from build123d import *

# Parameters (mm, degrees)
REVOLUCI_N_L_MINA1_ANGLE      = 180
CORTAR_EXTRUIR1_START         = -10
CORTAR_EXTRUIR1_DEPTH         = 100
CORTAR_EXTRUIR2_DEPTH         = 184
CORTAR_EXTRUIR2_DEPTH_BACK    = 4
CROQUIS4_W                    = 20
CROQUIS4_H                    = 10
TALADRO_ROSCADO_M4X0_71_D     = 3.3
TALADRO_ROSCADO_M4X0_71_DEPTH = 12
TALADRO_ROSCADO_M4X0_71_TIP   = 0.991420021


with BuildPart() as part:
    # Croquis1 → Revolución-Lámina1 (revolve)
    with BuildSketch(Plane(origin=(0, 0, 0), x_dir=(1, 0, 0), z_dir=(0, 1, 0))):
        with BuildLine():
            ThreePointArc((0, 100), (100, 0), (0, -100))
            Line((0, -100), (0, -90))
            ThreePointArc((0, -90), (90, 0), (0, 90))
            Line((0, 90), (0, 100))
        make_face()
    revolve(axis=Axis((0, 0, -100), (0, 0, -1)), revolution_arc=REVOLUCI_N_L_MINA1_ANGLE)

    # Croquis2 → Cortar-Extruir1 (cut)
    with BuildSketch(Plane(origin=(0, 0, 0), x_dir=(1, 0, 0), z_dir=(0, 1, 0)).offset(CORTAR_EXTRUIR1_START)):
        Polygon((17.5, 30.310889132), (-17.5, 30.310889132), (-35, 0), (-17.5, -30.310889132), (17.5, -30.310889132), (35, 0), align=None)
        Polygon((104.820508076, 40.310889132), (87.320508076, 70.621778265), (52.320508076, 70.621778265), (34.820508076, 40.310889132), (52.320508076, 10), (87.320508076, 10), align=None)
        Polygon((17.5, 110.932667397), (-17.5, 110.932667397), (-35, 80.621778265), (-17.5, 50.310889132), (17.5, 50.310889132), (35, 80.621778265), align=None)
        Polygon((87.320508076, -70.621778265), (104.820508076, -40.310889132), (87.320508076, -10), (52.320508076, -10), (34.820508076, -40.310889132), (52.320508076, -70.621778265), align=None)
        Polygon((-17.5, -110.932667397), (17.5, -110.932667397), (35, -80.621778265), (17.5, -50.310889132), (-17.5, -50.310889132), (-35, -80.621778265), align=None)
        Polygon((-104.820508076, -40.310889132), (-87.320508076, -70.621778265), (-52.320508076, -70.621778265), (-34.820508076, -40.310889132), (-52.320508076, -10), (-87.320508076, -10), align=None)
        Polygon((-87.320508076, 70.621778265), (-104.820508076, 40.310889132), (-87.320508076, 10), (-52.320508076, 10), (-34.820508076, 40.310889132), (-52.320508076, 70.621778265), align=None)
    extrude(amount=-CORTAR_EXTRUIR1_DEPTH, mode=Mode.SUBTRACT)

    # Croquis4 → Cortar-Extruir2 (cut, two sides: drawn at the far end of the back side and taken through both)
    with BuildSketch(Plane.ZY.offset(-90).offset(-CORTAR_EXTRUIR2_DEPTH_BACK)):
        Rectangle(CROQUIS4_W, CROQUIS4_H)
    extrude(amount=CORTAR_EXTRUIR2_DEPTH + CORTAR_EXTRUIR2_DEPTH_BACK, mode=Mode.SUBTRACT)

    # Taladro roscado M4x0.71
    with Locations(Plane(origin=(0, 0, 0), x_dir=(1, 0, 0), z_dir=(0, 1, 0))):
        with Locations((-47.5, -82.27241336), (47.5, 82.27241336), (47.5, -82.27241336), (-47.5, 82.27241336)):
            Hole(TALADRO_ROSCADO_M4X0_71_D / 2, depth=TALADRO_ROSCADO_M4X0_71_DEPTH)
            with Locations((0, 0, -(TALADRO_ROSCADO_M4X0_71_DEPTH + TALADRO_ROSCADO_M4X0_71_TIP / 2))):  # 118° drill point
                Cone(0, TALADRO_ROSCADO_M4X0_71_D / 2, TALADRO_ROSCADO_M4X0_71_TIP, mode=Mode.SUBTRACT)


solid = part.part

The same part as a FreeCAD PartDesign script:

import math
import FreeCAD as App
import Part
import Sketcher

V = App.Vector
Q = App.Units.Quantity


def add_polygon(sketch, points):
    """Adds a closed chain of lines whose ends are joined by coincident constraints."""
    first, n = sketch.GeometryCount, len(points)
    for a, b in zip(points, points[1:] + points[:1]):
        sketch.addGeometry(Part.LineSegment(App.Vector(*a, 0), App.Vector(*b, 0)), False)
    for i in range(n):
        sketch.addConstraint(Sketcher.Constraint("Coincident", first + i, 2, first + (i + 1) % n, 1))

doc = App.newDocument("Part")
body = doc.addObject("PartDesign::Body", "Body")

# Sketch on XZ plane
sketch1 = doc.addObject("Sketcher::SketchObject", "Sketch")
body.addObject(sketch1)
sketch1.AttachmentSupport = (doc.XZ_Plane, [""])
sketch1.MapMode = "FlatFace"
sketch1.addGeometry(Part.ArcOfCircle(Part.Circle(V(0, 0, 0), V(0, 0, 1), 100), math.radians(-90), math.radians(90)), False)
sketch1.addGeometry(Part.LineSegment(V(0, -100, 0), V(0, -90, 0)), False)
sketch1.addGeometry(Part.ArcOfCircle(Part.Circle(V(0, 0, 0), V(0, 0, 1), 90), math.radians(-90), math.radians(90)), False)
sketch1.addGeometry(Part.LineSegment(V(0, 90, 0), V(0, 100, 0)), False)
sketch1.addConstraint(Sketcher.Constraint("Coincident", 0, 1, 1, 1))
sketch1.addConstraint(Sketcher.Constraint("Coincident", 1, 2, 2, 1))
sketch1.addConstraint(Sketcher.Constraint("Coincident", 2, 2, 3, 1))
sketch1.addConstraint(Sketcher.Constraint("Coincident", 3, 2, 0, 2))
sketch1.addConstraint(Sketcher.Constraint("Vertical", 1))
sketch1.addConstraint(Sketcher.Constraint("Vertical", 3))
sketch1.addConstraint(Sketcher.Constraint("Coincident", 0, 3, -1, 1))
sketch1.addConstraint(Sketcher.Constraint("Coincident", 2, 3, -1, 1))
sketch1.addConstraint(Sketcher.Constraint("PointOnObject", 0, 1, -2))
sketch1.addConstraint(Sketcher.Constraint("PointOnObject", 2, 2, -2))
sketch1.addConstraint(Sketcher.Constraint("Radius", 0, 100.0))
sketch1.addConstraint(Sketcher.Constraint("Radius", 2, 90.0))
revolution = doc.addObject("PartDesign::Revolution", "Revolution")
body.addObject(revolution)
revolution.Profile = sketch1
revolution.ReferenceAxis = (sketch1, ["V_Axis"])
revolution.Angle = 180
revolution.Reversed = True

# Sketch on XZ plane
sketch2 = doc.addObject("Sketcher::SketchObject", "Sketch001")
body.addObject(sketch2)
sketch2.AttachmentSupport = (doc.XZ_Plane, [""])
sketch2.MapMode = "FlatFace"
sketch2.AttachmentOffset = App.Placement(V(0, 0, 10), App.Rotation())
add_polygon(sketch2, [(17.5, -30.310889), (-17.5, -30.310889), (-35, 0), (-17.5, 30.310889), (17.5, 30.310889), (35, 0)])  # lines 0-5
add_polygon(sketch2, [(104.820508, -40.310889), (87.320508, -70.621778), (52.320508, -70.621778), (34.820508, -40.310889), (52.320508, -10), (87.320508, -10)])  # lines 6-11
add_polygon(sketch2, [(17.5, -110.932667), (-17.5, -110.932667), (-35, -80.621778), (-17.5, -50.310889), (17.5, -50.310889), (35, -80.621778)])  # lines 12-17
add_polygon(sketch2, [(87.320508, 70.621778), (104.820508, 40.310889), (87.320508, 10), (52.320508, 10), (34.820508, 40.310889), (52.320508, 70.621778)])  # lines 18-23
add_polygon(sketch2, [(-17.5, 110.932667), (17.5, 110.932667), (35, 80.621778), (17.5, 50.310889), (-17.5, 50.310889), (-35, 80.621778)])  # lines 24-29
add_polygon(sketch2, [(-104.820508, 40.310889), (-87.320508, 70.621778), (-52.320508, 70.621778), (-34.820508, 40.310889), (-52.320508, 10), (-87.320508, 10)])  # lines 30-35
add_polygon(sketch2, [(-87.320508, -70.621778), (-104.820508, -40.310889), (-87.320508, -10), (-52.320508, -10), (-34.820508, -40.310889), (-52.320508, -70.621778)])  # lines 36-41
sketch2.addConstraint(Sketcher.Constraint("Horizontal", 0))
sketch2.addConstraint(Sketcher.Constraint("Horizontal", 3))
sketch2.addConstraint(Sketcher.Constraint("Horizontal", 7))
sketch2.addConstraint(Sketcher.Constraint("Horizontal", 10))
sketch2.addConstraint(Sketcher.Constraint("Horizontal", 12))
sketch2.addConstraint(Sketcher.Constraint("Horizontal", 15))
sketch2.addConstraint(Sketcher.Constraint("Horizontal", 20))
sketch2.addConstraint(Sketcher.Constraint("Horizontal", 23))
sketch2.addConstraint(Sketcher.Constraint("Horizontal", 24))
sketch2.addConstraint(Sketcher.Constraint("Horizontal", 27))
sketch2.addConstraint(Sketcher.Constraint("Horizontal", 31))
sketch2.addConstraint(Sketcher.Constraint("Horizontal", 34))
sketch2.addConstraint(Sketcher.Constraint("Horizontal", 38))
sketch2.addConstraint(Sketcher.Constraint("Horizontal", 41))
sketch2.addConstraint(Sketcher.Constraint("Symmetric", 0, 2, 3, 2, -1, 1))
sketch2.addConstraint(Sketcher.Constraint("Symmetric", 1, 2, 4, 2, -1, 1))
sketch2.addConstraint(Sketcher.Constraint("Symmetric", 12, 2, 24, 2, -1, 1))
sketch2.addConstraint(Sketcher.Constraint("Symmetric", 13, 2, 25, 2, -1, 1))
sketch2.addConstraint(Sketcher.Constraint("Symmetric", 14, 2, 26, 2, -1, 1))
sketch2.addConstraint(Sketcher.Constraint("Symmetric", 16, 2, 28, 2, -1, 1))
sketch2.addConstraint(Sketcher.Constraint("Symmetric", 6, 2, 30, 2, -1, 1))
sketch2.addConstraint(Sketcher.Constraint("Symmetric", 8, 2, 32, 2, -1, 1))
sketch2.addConstraint(Sketcher.Constraint("Symmetric", 9, 2, 33, 2, -1, 1))
sketch2.addConstraint(Sketcher.Constraint("Symmetric", 11, 2, 35, 2, -1, 1))
sketch2.addConstraint(Sketcher.Constraint("Symmetric", 18, 2, 36, 2, -1, 1))
sketch2.addConstraint(Sketcher.Constraint("Symmetric", 19, 2, 37, 2, -1, 1))
sketch2.addConstraint(Sketcher.Constraint("Symmetric", 21, 2, 39, 2, -1, 1))
sketch2.addConstraint(Sketcher.Constraint("Symmetric", 22, 2, 40, 2, -1, 1))
sketch2.addConstraint(Sketcher.Constraint("Symmetric", 13, 2, 16, 2, -2))
sketch2.addConstraint(Sketcher.Constraint("Symmetric", 23, 2, 30, 2, -2))
sketch2.addConstraint(Sketcher.Constraint("Symmetric", 21, 2, 32, 2, -2))
sketch2.addConstraint(Sketcher.Constraint("Symmetric", 20, 2, 33, 2, -2))
sketch2.addConstraint(Sketcher.Constraint("Symmetric", 18, 2, 35, 2, -2))
sketch2.addConstraint(Sketcher.Constraint("PointOnObject", 1, 2, -1))
sketch2.addConstraint(Sketcher.Constraint("Parallel", 2, 5))
sketch2.addConstraint(Sketcher.Constraint("Parallel", 5, 6))
sketch2.addConstraint(Sketcher.Constraint("Parallel", 4, 8))
sketch2.addConstraint(Sketcher.Constraint("Parallel", 6, 9))
sketch2.addConstraint(Sketcher.Constraint("Parallel", 8, 11))
sketch2.addConstraint(Sketcher.Constraint("Parallel", 11, 13))
sketch2.addConstraint(Sketcher.Constraint("Parallel", 9, 14))
sketch2.addConstraint(Sketcher.Constraint("Parallel", 13, 16))
sketch2.addConstraint(Sketcher.Constraint("Parallel", 14, 17))
sketch2.addConstraint(Sketcher.Constraint("Parallel", 16, 18))
sketch2.addConstraint(Sketcher.Constraint("Parallel", 17, 19))
sketch2.addConstraint(Sketcher.Constraint("Parallel", 19, 22))
sketch2.addConstraint(Sketcher.Constraint("Parallel", 25, 28))
sketch2.addConstraint(Sketcher.Constraint("Parallel", 26, 29))
sketch2.addConstraint(Sketcher.Constraint("Parallel", 28, 32))
sketch2.addConstraint(Sketcher.Constraint("Parallel", 32, 35))
sketch2.addConstraint(Sketcher.Constraint("Parallel", 35, 36))
sketch2.addConstraint(Sketcher.Constraint("Parallel", 36, 39))
sketch2.addConstraint(Sketcher.Constraint("Horizontal", 8, 2, 11, 2))
sketch2.addConstraint(Sketcher.Constraint("Vertical", 7, 2, 9, 2))
sketch2.addConstraint(Sketcher.Constraint("Vertical", 2, 2, 12, 2))
sketch2.addConstraint(Sketcher.Constraint("Vertical", 1, 2, 13, 2))
sketch2.addConstraint(Sketcher.Constraint("Vertical", 12, 2, 14, 2))
sketch2.addConstraint(Sketcher.Constraint("Equal", 3, 7))
sketch2.addConstraint(Sketcher.Constraint("Equal", 5, 6))
sketch2.addConstraint(Sketcher.Constraint("DistanceX", 0, 2, 0, 1, 35.0))
sketch2.addConstraint(Sketcher.Constraint("Angle", 1, Q("120 deg")))
sketch2.addConstraint(Sketcher.Constraint("Distance", 1, 35.0))
sketch2.addConstraint(Sketcher.Constraint("DistanceY", 9, 2, -1, 1, 10.0))
sketch2.addConstraint(Sketcher.Constraint("DistanceY", 14, 2, 0, 2, 20.0))
sketch2.addConstraint(Sketcher.Constraint("DistanceX", -1, 1, 6, 2, 87.320508))
pocket1 = doc.addObject("PartDesign::Pocket", "Pocket")
body.addObject(pocket1)
pocket1.Profile = sketch2
pocket1.Length = 100
pocket1.Reversed = True

# Sketch on YZ plane
sketch3 = doc.addObject("Sketcher::SketchObject", "Sketch002")
body.addObject(sketch3)
sketch3.AttachmentSupport = (doc.YZ_Plane, [""])
sketch3.MapMode = "FlatFace"
sketch3.AttachmentOffset = App.Placement(V(0, 0, 90), App.Rotation())
add_polygon(sketch3, [(5, -10), (-5, -10), (-5, 10), (5, 10)])  # lines 0-3
sketch3.addConstraint(Sketcher.Constraint("Horizontal", 0))
sketch3.addConstraint(Sketcher.Constraint("Vertical", 1))
sketch3.addConstraint(Sketcher.Constraint("Horizontal", 2))
sketch3.addConstraint(Sketcher.Constraint("Vertical", 3))
sketch3.addConstraint(Sketcher.Constraint("Symmetric", 0, 2, 2, 2, -1, 1))
sketch3.addConstraint(Sketcher.Constraint("DistanceX", 0, 2, 0, 1, 10.0))
sketch3.addConstraint(Sketcher.Constraint("DistanceY", 1, 1, 1, 2, 20.0))
pocket2 = doc.addObject("PartDesign::Pocket", "Pocket001")
body.addObject(pocket2)
pocket2.Profile = sketch3
pocket2.Type = "TwoLengths"
pocket2.Length = 184
pocket2.Length2 = 4

# Sketch on XZ plane
sketch4 = doc.addObject("Sketcher::SketchObject", "Sketch003")
body.addObject(sketch4)
sketch4.AttachmentSupport = (doc.XZ_Plane, [""])
sketch4.MapMode = "FlatFace"
sketch4.addGeometry(Part.Circle(V(-47.5, 82.272413, 0), V(0, 0, 1), 1.65), False)
sketch4.addGeometry(Part.Circle(V(47.5, -82.272413, 0), V(0, 0, 1), 1.65), False)
sketch4.addGeometry(Part.Circle(V(47.5, 82.272413, 0), V(0, 0, 1), 1.65), False)
sketch4.addGeometry(Part.Circle(V(-47.5, -82.272413, 0), V(0, 0, 1), 1.65), False)
sketch4.addConstraint(Sketcher.Constraint("Equal", 0, 1))
sketch4.addConstraint(Sketcher.Constraint("Equal", 1, 2))
sketch4.addConstraint(Sketcher.Constraint("Equal", 2, 3))
sketch4.addConstraint(Sketcher.Constraint("Symmetric", 0, 3, 1, 3, -1, 1))
sketch4.addConstraint(Sketcher.Constraint("Symmetric", 2, 3, 3, 3, -1, 1))
sketch4.addConstraint(Sketcher.Constraint("Symmetric", 0, 3, 2, 3, -2))
sketch4.addConstraint(Sketcher.Constraint("Diameter", 0, 3.3))
sketch4.addConstraint(Sketcher.Constraint("DistanceX", 0, 3, 1, 3, 95.0))
sketch4.addConstraint(Sketcher.Constraint("DistanceY", -1, 1, 0, 3, 82.272413))
doc.recompute()
hole = doc.addObject("PartDesign::Hole", "Hole")
body.addObject(hole)
hole.Profile = sketch4
hole.ThreadType = "None"
hole.Diameter = 3.3
hole.DepthType = "Dimension"
hole.Depth = 12
hole.DrillPoint = "Angled"
hole.DrillPointAngle = 118
hole.Reversed = True

doc.recompute()
